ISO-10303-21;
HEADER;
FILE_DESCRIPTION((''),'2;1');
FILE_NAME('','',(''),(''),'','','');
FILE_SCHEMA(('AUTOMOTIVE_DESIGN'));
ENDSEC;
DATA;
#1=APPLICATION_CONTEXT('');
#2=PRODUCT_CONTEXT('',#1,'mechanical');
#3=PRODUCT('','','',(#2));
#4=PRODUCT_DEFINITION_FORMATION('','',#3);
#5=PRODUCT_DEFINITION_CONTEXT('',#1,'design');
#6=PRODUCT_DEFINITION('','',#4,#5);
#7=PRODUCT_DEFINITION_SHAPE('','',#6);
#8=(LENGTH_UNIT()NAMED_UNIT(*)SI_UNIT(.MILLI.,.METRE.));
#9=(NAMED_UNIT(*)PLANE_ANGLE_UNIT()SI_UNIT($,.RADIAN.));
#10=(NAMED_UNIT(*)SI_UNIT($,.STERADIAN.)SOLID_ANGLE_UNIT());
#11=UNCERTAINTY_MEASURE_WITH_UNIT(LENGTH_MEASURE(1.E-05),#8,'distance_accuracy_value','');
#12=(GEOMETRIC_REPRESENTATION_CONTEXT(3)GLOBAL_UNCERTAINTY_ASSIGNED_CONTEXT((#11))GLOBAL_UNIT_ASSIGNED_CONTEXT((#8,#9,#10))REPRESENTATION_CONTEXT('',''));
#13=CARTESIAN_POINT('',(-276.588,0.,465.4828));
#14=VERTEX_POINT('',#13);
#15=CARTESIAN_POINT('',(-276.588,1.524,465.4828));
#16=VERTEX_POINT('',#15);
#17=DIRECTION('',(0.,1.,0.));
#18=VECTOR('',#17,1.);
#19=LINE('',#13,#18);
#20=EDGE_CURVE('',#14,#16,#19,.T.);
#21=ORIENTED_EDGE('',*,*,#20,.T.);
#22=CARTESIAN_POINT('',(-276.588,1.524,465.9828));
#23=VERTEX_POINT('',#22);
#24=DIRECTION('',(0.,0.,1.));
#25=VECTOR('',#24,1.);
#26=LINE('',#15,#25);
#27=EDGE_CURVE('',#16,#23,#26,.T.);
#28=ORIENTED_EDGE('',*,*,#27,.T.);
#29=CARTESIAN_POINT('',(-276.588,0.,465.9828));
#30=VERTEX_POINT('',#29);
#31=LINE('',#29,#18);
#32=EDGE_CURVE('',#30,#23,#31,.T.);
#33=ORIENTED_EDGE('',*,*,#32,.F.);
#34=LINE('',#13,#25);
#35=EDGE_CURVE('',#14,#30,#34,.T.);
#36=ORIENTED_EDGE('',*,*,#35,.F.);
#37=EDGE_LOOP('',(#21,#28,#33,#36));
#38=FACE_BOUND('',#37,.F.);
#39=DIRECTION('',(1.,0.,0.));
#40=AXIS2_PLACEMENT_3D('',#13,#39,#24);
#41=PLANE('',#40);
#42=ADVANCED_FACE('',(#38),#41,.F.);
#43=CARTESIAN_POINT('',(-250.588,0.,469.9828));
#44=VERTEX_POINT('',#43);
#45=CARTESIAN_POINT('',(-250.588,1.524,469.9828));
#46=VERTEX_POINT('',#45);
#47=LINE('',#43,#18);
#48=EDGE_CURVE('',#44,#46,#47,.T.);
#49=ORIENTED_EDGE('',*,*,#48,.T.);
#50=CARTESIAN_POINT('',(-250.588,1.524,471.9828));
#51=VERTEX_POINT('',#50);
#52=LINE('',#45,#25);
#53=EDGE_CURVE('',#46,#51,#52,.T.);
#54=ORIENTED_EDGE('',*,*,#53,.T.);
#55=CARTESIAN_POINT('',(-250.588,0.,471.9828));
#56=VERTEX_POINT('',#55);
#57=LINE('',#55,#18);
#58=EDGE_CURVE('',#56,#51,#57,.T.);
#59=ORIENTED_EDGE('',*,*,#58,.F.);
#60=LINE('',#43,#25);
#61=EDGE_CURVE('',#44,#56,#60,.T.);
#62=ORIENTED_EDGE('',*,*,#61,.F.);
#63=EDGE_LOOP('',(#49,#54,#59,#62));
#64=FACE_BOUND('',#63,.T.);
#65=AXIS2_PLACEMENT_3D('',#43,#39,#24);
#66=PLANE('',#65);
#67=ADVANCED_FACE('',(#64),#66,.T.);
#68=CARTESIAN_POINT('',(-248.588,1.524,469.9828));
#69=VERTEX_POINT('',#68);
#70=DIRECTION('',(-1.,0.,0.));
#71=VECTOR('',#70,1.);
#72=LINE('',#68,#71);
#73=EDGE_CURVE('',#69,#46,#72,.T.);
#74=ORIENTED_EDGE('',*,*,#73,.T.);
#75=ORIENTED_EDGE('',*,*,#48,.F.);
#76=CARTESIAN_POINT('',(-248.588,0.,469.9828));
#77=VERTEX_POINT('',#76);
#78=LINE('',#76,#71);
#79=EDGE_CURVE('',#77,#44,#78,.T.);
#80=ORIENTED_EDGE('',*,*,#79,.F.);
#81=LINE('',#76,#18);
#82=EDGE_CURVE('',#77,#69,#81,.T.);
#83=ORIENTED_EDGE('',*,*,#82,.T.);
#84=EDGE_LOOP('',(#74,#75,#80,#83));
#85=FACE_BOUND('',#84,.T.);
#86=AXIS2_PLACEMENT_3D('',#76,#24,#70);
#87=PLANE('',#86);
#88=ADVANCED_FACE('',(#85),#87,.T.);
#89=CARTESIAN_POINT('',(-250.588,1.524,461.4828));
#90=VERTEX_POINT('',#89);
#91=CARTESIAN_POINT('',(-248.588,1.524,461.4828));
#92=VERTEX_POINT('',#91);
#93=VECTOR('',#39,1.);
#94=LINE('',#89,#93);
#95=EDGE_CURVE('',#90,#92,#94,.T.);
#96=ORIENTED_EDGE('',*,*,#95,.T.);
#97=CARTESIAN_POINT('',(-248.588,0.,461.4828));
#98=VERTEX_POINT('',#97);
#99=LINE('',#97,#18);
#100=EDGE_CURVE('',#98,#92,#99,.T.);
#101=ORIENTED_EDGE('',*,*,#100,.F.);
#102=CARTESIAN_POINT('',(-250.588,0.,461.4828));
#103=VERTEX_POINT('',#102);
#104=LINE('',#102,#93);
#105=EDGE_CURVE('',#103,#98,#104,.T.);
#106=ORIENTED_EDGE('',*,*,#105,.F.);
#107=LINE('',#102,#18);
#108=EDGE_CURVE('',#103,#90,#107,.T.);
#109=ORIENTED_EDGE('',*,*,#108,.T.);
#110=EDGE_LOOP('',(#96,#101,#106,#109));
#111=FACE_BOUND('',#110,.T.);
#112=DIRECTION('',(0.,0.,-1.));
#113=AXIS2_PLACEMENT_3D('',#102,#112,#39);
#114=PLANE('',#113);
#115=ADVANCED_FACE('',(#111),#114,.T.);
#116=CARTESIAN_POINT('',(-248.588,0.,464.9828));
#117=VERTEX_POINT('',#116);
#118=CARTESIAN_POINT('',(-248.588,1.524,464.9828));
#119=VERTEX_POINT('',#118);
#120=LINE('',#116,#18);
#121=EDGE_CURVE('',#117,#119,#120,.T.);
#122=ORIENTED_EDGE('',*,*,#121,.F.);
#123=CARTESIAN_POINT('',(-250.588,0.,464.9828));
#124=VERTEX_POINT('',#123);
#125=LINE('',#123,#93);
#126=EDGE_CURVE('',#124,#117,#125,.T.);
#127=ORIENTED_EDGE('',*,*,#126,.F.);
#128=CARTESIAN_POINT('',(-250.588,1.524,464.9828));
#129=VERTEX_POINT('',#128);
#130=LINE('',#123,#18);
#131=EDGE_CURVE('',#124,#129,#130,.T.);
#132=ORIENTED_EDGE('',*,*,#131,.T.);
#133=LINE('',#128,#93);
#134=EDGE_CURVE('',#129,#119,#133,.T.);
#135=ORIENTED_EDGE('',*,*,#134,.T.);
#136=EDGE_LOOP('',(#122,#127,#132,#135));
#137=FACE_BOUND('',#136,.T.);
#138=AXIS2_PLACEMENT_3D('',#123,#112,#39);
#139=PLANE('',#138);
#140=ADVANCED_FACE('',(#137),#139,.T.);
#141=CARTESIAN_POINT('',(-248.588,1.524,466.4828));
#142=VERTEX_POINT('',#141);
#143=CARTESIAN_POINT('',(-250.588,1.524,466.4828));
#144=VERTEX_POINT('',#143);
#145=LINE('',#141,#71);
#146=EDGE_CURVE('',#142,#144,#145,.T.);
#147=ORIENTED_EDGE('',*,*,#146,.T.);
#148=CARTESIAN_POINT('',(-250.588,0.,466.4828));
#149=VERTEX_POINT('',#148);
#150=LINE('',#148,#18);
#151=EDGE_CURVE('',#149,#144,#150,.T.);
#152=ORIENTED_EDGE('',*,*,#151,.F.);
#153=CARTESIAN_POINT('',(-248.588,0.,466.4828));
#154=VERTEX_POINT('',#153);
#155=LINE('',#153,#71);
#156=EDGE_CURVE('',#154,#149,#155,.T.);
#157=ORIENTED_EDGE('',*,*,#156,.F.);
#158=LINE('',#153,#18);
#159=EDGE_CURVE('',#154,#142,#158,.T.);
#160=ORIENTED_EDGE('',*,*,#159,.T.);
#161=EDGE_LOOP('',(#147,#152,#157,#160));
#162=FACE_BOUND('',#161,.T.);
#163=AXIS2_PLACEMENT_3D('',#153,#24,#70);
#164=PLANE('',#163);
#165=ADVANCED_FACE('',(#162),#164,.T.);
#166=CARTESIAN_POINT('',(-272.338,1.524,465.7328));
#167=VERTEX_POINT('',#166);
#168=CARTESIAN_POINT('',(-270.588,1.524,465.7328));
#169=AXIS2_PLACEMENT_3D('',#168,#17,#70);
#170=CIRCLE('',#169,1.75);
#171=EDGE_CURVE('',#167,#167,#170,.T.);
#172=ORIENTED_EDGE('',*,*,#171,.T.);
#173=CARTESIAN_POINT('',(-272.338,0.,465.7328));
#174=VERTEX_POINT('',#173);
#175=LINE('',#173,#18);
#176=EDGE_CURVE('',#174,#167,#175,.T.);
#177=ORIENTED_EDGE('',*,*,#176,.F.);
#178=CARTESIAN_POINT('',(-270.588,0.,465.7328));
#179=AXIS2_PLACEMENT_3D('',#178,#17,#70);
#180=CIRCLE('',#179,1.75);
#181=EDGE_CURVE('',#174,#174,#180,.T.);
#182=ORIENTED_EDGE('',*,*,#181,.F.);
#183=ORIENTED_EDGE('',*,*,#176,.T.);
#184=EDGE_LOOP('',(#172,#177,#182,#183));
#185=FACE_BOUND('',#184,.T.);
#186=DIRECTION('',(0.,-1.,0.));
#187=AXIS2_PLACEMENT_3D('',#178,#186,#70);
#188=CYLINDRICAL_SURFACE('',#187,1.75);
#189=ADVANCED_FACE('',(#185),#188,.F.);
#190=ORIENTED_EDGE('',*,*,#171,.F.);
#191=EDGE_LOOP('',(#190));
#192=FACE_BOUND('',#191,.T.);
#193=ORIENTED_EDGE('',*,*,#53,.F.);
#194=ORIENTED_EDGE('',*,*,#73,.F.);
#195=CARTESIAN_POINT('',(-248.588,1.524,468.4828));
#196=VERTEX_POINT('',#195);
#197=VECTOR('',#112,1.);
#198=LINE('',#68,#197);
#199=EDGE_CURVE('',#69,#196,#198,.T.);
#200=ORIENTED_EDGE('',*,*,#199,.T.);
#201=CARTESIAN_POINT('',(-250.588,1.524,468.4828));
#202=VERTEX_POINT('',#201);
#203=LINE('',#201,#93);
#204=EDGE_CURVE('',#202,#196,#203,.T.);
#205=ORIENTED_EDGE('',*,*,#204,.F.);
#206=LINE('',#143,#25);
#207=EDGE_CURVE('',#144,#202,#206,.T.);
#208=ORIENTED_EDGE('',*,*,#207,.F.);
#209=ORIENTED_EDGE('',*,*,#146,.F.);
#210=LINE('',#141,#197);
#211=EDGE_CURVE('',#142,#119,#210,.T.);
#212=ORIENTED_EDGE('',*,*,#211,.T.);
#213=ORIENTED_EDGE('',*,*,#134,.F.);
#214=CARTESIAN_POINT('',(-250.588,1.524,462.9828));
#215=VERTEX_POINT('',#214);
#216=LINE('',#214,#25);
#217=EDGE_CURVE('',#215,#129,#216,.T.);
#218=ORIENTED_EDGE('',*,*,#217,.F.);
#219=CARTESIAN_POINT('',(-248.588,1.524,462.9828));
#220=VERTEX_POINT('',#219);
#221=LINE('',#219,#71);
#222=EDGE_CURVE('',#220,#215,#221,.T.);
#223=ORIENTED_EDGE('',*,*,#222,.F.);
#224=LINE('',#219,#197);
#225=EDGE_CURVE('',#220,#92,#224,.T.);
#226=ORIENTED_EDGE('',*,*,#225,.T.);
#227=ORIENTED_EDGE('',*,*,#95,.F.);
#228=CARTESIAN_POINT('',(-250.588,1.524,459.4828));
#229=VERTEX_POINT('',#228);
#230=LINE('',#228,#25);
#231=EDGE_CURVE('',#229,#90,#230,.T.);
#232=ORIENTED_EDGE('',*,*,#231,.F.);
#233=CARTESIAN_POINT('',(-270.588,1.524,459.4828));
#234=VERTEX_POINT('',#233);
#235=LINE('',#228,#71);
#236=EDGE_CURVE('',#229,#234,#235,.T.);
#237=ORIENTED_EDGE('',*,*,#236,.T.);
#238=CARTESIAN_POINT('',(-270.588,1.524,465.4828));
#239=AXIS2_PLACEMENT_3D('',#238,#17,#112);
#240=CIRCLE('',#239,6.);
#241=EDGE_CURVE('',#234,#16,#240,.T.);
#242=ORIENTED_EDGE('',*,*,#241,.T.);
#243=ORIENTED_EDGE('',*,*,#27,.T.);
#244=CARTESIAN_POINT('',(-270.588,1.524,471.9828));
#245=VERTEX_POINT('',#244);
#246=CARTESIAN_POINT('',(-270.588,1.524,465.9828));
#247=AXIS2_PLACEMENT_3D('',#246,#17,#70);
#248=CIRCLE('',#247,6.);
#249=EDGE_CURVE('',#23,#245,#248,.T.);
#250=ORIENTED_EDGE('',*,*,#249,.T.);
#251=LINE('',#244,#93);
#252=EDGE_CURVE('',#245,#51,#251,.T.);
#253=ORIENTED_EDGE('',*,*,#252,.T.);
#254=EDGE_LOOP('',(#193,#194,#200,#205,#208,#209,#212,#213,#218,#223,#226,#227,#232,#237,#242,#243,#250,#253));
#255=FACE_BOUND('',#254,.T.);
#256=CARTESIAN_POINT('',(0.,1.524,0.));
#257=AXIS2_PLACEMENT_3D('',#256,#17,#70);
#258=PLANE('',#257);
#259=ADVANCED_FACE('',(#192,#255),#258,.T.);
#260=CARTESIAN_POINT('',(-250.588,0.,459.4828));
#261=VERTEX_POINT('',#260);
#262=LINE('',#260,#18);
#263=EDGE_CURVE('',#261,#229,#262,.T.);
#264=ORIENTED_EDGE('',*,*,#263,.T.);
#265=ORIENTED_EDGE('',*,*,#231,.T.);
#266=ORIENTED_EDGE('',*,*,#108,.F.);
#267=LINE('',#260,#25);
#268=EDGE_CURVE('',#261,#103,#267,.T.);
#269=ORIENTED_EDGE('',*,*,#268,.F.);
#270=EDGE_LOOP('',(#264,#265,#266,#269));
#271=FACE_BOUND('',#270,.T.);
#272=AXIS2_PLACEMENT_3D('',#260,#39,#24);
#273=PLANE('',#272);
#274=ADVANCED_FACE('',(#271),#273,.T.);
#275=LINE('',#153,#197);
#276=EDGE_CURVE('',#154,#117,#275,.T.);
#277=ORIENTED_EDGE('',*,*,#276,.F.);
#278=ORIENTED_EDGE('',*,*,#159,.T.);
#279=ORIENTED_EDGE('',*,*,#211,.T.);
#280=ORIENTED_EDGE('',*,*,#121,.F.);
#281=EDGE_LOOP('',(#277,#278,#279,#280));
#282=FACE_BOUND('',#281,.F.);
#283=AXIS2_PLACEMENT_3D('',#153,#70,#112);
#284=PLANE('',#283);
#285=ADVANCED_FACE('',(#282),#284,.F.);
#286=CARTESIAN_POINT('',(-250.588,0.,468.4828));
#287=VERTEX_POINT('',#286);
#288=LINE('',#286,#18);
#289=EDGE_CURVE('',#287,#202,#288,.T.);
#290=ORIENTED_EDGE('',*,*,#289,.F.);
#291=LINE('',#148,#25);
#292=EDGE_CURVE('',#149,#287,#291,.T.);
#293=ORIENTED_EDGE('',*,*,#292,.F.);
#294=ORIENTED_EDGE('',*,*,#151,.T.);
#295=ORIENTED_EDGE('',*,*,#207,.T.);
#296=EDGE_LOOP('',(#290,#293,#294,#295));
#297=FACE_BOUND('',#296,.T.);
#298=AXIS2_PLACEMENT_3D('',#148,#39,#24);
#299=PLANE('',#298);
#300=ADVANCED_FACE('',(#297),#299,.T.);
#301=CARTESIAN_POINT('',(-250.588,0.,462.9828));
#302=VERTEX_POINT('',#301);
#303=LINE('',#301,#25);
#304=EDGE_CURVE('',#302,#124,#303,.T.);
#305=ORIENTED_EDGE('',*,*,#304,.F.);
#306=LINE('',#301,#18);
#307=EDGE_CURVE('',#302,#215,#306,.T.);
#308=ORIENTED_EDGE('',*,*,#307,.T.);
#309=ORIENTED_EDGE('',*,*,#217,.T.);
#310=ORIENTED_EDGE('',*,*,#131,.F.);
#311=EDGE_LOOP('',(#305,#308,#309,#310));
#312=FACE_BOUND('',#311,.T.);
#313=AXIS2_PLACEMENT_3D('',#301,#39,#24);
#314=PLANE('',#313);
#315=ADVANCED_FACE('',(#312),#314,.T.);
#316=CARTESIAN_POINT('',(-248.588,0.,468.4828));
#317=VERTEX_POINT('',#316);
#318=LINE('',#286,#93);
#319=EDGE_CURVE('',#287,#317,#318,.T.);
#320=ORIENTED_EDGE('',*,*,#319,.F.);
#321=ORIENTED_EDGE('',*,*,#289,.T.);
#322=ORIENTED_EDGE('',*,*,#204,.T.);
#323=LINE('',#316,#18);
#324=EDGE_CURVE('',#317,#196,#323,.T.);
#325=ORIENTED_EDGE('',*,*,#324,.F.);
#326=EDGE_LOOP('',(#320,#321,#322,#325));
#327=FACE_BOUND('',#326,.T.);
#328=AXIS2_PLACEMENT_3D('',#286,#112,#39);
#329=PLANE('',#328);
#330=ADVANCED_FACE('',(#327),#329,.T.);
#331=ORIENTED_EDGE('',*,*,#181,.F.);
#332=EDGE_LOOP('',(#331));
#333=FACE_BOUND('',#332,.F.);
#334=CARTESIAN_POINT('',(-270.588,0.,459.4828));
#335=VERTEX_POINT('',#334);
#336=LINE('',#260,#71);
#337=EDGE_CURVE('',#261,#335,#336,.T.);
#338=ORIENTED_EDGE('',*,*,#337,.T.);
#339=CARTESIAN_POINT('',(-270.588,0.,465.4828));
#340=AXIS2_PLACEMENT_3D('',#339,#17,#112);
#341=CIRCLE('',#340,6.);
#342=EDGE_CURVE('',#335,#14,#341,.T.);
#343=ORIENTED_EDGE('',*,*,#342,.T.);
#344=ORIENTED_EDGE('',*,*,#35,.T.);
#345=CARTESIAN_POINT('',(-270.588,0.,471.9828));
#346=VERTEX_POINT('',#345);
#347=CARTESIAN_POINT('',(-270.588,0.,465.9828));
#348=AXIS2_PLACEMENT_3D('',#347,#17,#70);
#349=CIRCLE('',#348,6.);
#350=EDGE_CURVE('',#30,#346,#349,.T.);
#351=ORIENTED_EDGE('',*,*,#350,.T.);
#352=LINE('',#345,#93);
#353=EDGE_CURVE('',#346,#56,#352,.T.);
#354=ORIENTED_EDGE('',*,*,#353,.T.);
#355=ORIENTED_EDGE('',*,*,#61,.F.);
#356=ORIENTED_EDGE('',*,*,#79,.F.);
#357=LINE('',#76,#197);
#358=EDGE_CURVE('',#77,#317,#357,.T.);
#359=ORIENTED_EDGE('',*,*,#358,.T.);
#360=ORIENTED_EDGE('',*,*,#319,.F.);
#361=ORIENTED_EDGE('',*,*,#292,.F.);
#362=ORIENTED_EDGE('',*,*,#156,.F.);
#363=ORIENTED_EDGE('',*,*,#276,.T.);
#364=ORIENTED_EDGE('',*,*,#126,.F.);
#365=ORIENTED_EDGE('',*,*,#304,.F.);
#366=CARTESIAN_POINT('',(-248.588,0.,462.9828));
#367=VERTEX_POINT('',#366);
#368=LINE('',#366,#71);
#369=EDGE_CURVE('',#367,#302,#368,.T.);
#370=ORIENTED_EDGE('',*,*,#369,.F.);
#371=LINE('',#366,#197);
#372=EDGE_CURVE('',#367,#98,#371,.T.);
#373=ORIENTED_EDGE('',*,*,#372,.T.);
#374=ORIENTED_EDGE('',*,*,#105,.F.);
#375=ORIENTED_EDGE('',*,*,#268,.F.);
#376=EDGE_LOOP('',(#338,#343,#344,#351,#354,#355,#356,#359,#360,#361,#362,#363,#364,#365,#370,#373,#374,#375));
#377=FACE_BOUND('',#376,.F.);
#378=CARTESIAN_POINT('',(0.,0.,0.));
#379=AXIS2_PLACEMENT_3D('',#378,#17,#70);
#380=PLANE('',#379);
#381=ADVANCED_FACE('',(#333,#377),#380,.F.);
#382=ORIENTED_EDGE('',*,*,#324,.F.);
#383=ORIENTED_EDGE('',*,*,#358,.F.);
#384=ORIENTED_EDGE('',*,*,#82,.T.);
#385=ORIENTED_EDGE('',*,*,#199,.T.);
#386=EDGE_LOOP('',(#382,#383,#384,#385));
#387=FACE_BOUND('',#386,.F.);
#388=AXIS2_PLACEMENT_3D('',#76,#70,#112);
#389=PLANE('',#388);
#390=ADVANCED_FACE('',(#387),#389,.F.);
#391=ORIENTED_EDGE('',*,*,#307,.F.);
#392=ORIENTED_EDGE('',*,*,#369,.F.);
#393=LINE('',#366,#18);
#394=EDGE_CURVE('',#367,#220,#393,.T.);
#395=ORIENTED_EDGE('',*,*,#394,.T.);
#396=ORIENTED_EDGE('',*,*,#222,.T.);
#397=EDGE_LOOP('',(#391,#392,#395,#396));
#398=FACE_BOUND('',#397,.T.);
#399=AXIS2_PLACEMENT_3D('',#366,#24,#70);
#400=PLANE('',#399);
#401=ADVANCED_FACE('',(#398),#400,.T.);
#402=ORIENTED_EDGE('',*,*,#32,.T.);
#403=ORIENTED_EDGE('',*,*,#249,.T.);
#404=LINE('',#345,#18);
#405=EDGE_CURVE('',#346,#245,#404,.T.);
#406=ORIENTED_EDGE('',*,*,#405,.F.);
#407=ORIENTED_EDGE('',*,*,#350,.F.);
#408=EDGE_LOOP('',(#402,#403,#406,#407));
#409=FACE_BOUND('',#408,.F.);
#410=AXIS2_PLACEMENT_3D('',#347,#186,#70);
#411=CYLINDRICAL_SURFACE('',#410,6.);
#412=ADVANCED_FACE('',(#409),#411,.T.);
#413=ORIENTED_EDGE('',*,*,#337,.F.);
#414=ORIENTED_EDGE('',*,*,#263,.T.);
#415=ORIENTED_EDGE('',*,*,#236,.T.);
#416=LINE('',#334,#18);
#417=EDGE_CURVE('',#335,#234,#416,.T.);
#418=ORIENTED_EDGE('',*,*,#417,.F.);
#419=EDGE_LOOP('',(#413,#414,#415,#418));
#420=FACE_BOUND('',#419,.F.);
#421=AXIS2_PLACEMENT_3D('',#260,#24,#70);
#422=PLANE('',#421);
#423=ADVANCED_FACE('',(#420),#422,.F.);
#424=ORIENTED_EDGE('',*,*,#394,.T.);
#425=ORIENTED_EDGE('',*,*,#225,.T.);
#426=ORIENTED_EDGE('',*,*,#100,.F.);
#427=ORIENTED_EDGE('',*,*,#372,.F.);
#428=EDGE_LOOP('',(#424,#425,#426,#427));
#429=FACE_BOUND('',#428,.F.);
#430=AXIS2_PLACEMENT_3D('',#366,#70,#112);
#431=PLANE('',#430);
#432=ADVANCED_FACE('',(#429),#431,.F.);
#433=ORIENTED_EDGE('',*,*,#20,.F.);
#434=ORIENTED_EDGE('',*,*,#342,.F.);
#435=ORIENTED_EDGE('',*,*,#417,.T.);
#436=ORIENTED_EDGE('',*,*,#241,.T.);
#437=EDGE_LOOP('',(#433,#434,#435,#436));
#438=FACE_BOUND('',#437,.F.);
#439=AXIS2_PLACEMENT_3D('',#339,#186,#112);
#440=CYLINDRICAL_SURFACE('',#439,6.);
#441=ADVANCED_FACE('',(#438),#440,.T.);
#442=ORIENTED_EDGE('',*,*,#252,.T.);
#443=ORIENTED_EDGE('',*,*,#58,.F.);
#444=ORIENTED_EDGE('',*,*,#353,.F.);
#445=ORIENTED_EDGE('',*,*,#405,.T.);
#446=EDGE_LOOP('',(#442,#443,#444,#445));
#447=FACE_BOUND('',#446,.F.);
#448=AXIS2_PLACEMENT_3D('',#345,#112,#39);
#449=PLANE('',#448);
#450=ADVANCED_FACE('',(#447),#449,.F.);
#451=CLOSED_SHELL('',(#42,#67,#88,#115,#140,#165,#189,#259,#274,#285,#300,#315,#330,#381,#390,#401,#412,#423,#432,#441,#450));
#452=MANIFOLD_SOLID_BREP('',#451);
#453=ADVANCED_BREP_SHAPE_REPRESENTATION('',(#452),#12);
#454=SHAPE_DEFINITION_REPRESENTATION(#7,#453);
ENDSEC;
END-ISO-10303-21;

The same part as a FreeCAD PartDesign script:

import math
import FreeCAD as App
import Part
import Sketcher

V = App.Vector

doc = App.newDocument("Part")
body = doc.addObject("PartDesign::Body", "Body")

# Sketch on XZ plane
sketch1 = body.newObject("Sketcher::SketchObject", "Sketch")
sketch1.AttachmentSupport = (doc.getObject("XZ_Plane"), [""])
sketch1.MapMode = "FlatFace"
sketch1.addGeometry([
    Part.ArcOfCircle(Part.Circle(V(-270.6, 466, 0), V(0, 0, 1), 6), math.radians(90), math.radians(180)),  # 0
    Part.LineSegment(V(-270.6, 472, 0), V(-250.6, 472, 0)),  # 1
    Part.LineSegment(V(-250.6, 472, 0), V(-250.6, 470, 0)),  # 2
    Part.LineSegment(V(-250.6, 470, 0), V(-248.6, 470, 0)),  # 3
    Part.LineSegment(V(-248.6, 470, 0), V(-248.6, 468.5, 0)),  # 4
    Part.LineSegment(V(-248.6, 468.5, 0), V(-250.6, 468.5, 0)),  # 5
    Part.LineSegment(V(-250.6, 468.5, 0), V(-250.6, 466.5, 0)),  # 6
    Part.LineSegment(V(-250.6, 466.5, 0), V(-248.6, 466.5, 0)),  # 7
    Part.LineSegment(V(-248.6, 466.5, 0), V(-248.6, 465, 0)),  # 8
    Part.LineSegment(V(-248.6, 465, 0), V(-250.6, 465, 0)),  # 9
    Part.LineSegment(V(-250.6, 465, 0), V(-250.6, 463, 0)),  # 10
    Part.LineSegment(V(-250.6, 463, 0), V(-248.6, 463, 0)),  # 11
    Part.LineSegment(V(-248.6, 463, 0), V(-248.6, 461.5, 0)),  # 12
    Part.LineSegment(V(-248.6, 461.5, 0), V(-250.6, 461.5, 0)),  # 13
    Part.LineSegment(V(-250.6, 461.5, 0), V(-250.6, 459.5, 0)),  # 14
    Part.LineSegment(V(-250.6, 459.5, 0), V(-270.6, 459.5, 0)),  # 15
    Part.ArcOfCircle(Part.Circle(V(-270.6, 465.5, 0), V(0, 0, 1), 6), math.radians(180), math.radians(270)),  # 16
    Part.LineSegment(V(-276.6, 465.5, 0), V(-276.6, 466, 0)),  # 17
    Part.Circle(V(-270.6, 465.7, 0), V(0, 0, 1), 1.8),  # 18
], False)
sketch1.addConstraint([
    Sketcher.Constraint("Tangent", 0, 1, 1, 1),
    Sketcher.Constraint("Coincident", 1, 2, 2, 1),
    Sketcher.Constraint("Coincident", 2, 2, 3, 1),
    Sketcher.Constraint("Coincident", 3, 2, 4, 1),
    Sketcher.Constraint("Coincident", 4, 2, 5, 1),
    Sketcher.Constraint("Coincident", 5, 2, 6, 1),
    Sketcher.Constraint("Coincident", 6, 2, 7, 1),
    Sketcher.Constraint("Coincident", 7, 2, 8, 1),
    Sketcher.Constraint("Coincident", 8, 2, 9, 1),
    Sketcher.Constraint("Coincident", 9, 2, 10, 1),
    Sketcher.Constraint("Coincident", 10, 2, 11, 1),
    Sketcher.Constraint("Coincident", 11, 2, 12, 1),
    Sketcher.Constraint("Coincident", 12, 2, 13, 1),
    Sketcher.Constraint("Coincident", 13, 2, 14, 1),
    Sketcher.Constraint("Coincident", 14, 2, 15, 1),
    Sketcher.Constraint("Tangent", 15, 2, 16, 2),
    Sketcher.Constraint("Tangent", 16, 1, 17, 1),
    Sketcher.Constraint("Tangent", 17, 2, 0, 2),
    Sketcher.Constraint("Horizontal", 1),
    Sketcher.Constraint("Vertical", 2),
    Sketcher.Constraint("Horizontal", 3),
    Sketcher.Constraint("Vertical", 4),
    Sketcher.Constraint("Horizontal", 5),
    Sketcher.Constraint("Vertical", 6),
    Sketcher.Constraint("Horizontal", 7),
    Sketcher.Constraint("Vertical", 8),
    Sketcher.Constraint("Horizontal", 9),
    Sketcher.Constraint("Vertical", 10),
    Sketcher.Constraint("Horizontal", 11),
    Sketcher.Constraint("Vertical", 12),
    Sketcher.Constraint("Horizontal", 13),
    Sketcher.Constraint("Vertical", 14),
    Sketcher.Constraint("Horizontal", 15),
    Sketcher.Constraint("Vertical", 17),
    Sketcher.Constraint("Equal", 0, 16),
    Sketcher.Constraint("Vertical", 16, 3, 18, 3),
    Sketcher.Constraint("Vertical", 2, 2, 5, 2),
    Sketcher.Constraint("Vertical", 4, 2, 7, 2),
    Sketcher.Constraint("Vertical", 6, 2, 9, 2),
    Sketcher.Constraint("Vertical", 8, 2, 11, 2),
    Sketcher.Constraint("Vertical", 10, 2, 13, 2),
    Sketcher.Constraint("Equal", 13, 2),
    Sketcher.Constraint("Equal", 2, 6),
    Sketcher.Constraint("Equal", 4, 8),
    Sketcher.Constraint("Equal", 6, 10),
    Sketcher.Constraint("Equal", 8, 12),
    Sketcher.Constraint("Equal", 10, 14),
    Sketcher.Constraint("Radius", 0, 6.0),
    Sketcher.Constraint("Diameter", 18, 3.5),
    Sketcher.Constraint("DistanceX", 1, 1, 1, 2, 20.0),
    Sketcher.Constraint("DistanceX", 3, 1, 3, 2, 2.0),
    Sketcher.Constraint("DistanceY", 4, 2, 4, 1, 1.5),
    Sketcher.Constraint("DistanceY", 18, 3, 0, 3, 0.25),
    Sketcher.Constraint("DistanceX", 0, 3, -1, 1, 270.588),
    Sketcher.Constraint("DistanceY", -1, 1, 0, 3, 465.9828),
])
pad1 = body.newObject("PartDesign::Pad", "Pad")
pad1.Profile = sketch1
pad1.Length = 1.524
pad1.Reversed = True

doc.recompute()
